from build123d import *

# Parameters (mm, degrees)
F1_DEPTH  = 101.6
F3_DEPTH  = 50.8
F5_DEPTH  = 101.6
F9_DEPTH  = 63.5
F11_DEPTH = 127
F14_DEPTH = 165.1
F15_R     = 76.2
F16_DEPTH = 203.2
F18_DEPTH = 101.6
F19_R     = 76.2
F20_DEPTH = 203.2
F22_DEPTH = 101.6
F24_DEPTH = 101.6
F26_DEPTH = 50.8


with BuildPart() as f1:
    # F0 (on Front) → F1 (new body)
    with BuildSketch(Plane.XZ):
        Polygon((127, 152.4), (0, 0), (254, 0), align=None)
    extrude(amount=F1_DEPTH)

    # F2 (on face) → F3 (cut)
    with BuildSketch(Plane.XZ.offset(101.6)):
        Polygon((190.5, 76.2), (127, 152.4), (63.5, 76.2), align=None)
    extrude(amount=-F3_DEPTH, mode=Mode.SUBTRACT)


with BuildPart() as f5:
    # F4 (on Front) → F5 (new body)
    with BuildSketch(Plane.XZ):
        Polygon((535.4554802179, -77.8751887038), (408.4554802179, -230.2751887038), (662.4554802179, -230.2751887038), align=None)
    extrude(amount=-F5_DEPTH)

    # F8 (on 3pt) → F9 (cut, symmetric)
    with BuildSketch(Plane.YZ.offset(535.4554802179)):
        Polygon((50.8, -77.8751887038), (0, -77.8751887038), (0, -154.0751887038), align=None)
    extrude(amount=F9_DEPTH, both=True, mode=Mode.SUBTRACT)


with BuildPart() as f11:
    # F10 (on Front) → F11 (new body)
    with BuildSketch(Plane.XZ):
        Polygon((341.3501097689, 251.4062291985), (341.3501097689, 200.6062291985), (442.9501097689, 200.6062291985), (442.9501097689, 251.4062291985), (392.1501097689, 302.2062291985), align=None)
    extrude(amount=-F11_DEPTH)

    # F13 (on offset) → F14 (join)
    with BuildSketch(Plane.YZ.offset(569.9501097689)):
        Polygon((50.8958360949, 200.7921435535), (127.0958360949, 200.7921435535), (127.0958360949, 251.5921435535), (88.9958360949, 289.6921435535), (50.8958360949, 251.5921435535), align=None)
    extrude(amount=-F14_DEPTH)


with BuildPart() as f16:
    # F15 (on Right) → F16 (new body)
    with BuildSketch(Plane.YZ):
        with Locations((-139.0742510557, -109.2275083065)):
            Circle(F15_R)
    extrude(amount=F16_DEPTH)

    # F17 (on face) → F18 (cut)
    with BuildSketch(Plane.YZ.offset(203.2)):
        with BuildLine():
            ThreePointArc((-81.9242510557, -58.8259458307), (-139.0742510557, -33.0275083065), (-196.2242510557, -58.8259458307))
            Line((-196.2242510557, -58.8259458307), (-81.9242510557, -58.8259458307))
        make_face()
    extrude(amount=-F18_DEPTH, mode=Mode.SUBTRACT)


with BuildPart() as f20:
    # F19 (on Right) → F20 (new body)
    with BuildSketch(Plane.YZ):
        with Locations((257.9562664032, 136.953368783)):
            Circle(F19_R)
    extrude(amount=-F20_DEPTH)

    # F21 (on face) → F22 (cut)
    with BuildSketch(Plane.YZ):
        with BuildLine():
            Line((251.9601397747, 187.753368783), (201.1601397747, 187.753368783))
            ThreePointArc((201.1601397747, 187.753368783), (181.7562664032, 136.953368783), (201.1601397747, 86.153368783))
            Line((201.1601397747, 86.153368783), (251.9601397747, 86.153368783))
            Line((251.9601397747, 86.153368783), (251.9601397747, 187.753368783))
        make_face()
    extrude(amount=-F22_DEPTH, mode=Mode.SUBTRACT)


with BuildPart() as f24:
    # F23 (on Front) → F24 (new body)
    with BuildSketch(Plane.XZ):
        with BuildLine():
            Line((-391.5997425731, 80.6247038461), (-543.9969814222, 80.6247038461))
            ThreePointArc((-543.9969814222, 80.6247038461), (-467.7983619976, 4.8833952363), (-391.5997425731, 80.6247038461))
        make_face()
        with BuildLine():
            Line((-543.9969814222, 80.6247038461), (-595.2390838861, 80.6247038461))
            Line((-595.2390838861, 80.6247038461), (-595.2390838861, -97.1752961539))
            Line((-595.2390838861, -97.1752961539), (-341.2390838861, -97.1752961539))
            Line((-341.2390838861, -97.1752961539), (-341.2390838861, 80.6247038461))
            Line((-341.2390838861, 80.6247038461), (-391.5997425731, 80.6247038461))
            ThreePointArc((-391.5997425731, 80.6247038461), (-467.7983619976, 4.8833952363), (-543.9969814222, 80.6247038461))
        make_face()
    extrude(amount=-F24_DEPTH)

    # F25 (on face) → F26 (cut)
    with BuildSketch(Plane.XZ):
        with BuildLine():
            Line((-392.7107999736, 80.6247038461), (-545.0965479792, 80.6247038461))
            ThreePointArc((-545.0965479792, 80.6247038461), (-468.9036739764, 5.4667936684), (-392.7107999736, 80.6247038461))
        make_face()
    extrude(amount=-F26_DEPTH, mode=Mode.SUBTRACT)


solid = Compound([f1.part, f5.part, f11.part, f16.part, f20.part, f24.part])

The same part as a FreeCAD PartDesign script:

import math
import FreeCAD as App
import Part
import Sketcher

V = App.Vector
Q = App.Units.Quantity


def add_polygon(sketch, points):
    """Adds a closed chain of lines whose ends are joined by coincident constraints."""
    first, n = sketch.GeometryCount, len(points)
    for a, b in zip(points, points[1:] + points[:1]):
        sketch.addGeometry(Part.LineSegment(App.Vector(*a, 0), App.Vector(*b, 0)), False)
    for i in range(n):
        sketch.addConstraint(Sketcher.Constraint("Coincident", first + i, 2, first + (i + 1) % n, 1))

doc = App.newDocument("Part")
body = doc.addObject("PartDesign::Body", "Body")

# Sketch on XZ plane
sketch1 = body.newObject("Sketcher::SketchObject", "Sketch")
sketch1.AttachmentSupport = (doc.getObject("XZ_Plane"), [""])
sketch1.MapMode = "FlatFace"
add_polygon(sketch1, [(127, 152), (0, 0), (254, 0)])  # lines 0-2
sketch1.addConstraint(Sketcher.Constraint("Horizontal", 1))
sketch1.addConstraint(Sketcher.Constraint("Coincident", 0, 2, -1, 1))
sketch1.addConstraint(Sketcher.Constraint("Equal", 0, 2))
sketch1.addConstraint(Sketcher.Constraint("DistanceX", 1, 1, 1, 2, Q("10 in")))
sketch1.addConstraint(Sketcher.Constraint("DistanceY", -1, 1, 2, 2, Q("6 in")))
pad1 = body.newObject("PartDesign::Pad", "Pad")
pad1.Profile = sketch1
pad1.Length = Q("4 in")

# Sketch on XZ plane
sketch2 = body.newObject("Sketcher::SketchObject", "Sketch001")
sketch2.AttachmentSupport = (doc.getObject("XZ_Plane"), [""])
sketch2.MapMode = "FlatFace"
sketch2.AttachmentOffset = App.Placement(V(0, 0, 4 * 25.4), App.Rotation())
add_polygon(sketch2, [(190, 76), (127, 152), (64, 76)])  # lines 0-2
sketch2.addConstraint(Sketcher.Constraint("Horizontal", 2))
sketch2.addConstraint(Sketcher.Constraint("Equal", 0, 1))
sketch2.addConstraint(Sketcher.Constraint("DistanceX", 2, 1, 2, 2, Q("5 in")))
sketch2.addConstraint(Sketcher.Constraint("DistanceX", -1, 1, 0, 2, Q("5 in")))
sketch2.addConstraint(Sketcher.Constraint("DistanceY", -1, 1, 0, 2, Q("6 in")))
sketch2.addConstraint(Sketcher.Constraint("DistanceY", -1, 1, 1, 2, Q("3 in")))
pocket1 = body.newObject("PartDesign::Pocket", "Pocket")
pocket1.Profile = sketch2
pocket1.Length = Q("2 in")
body2 = doc.addObject("PartDesign::Body", "Body001")

# Sketch on XZ plane
sketch3 = body2.newObject("Sketcher::SketchObject", "Sketch002")
sketch3.AttachmentSupport = (doc.getObject("XZ_Plane001"), [""])
sketch3.MapMode = "FlatFace"
add_polygon(sketch3, [(535, -78), (408, -230), (662, -230)])  # lines 0-2
sketch3.addConstraint(Sketcher.Constraint("Horizontal", 1))
sketch3.addConstraint(Sketcher.Constraint("Equal", 0, 2))
sketch3.addConstraint(Sketcher.Constraint("DistanceX", 1, 1, 1, 2, Q("10 in")))
sketch3.addConstraint(Sketcher.Constraint("DistanceY", 1, 2, 2, 2, Q("6 in")))
sketch3.addConstraint(Sketcher.Constraint("DistanceX", -1, 1, 0, 2, 408.45548))
sketch3.addConstraint(Sketcher.Constraint("DistanceY", 0, 2, -1, 1, 230.275189))
pad2 = body2.newObject("PartDesign::Pad", "Pad001")
pad2.Profile = sketch3
pad2.Length = Q("4 in")
pad2.Reversed = True

# Sketch on YZ plane
sketch4 = body2.newObject("Sketcher::SketchObject", "Sketch003")
sketch4.AttachmentSupport = (doc.getObject("YZ_Plane001"), [""])
sketch4.MapMode = "FlatFace"
sketch4.AttachmentOffset = App.Placement(V(0, 0, 535.45548), App.Rotation())
add_polygon(sketch4, [(51, -78), (0, -78), (0, -154)])  # lines 0-2
sketch4.addConstraint(Sketcher.Constraint("Horizontal", 0))
sketch4.addConstraint(Sketcher.Constraint("Vertical", 1))
sketch4.addConstraint(Sketcher.Constraint("PointOnObject", 0, 2, -2))
sketch4.addConstraint(Sketcher.Constraint("DistanceX", 0, 2, 0, 1, Q("2 in")))
sketch4.addConstraint(Sketcher.Constraint("DistanceY", 1, 2, 1, 1, Q("3 in")))
sketch4.addConstraint(Sketcher.Constraint("DistanceY", 0, 2, -1, 1, 77.875189))
pocket2 = body2.newObject("PartDesign::Pocket", "Pocket001")
pocket2.Profile = sketch4
pocket2.Length = Q("5 in")
pocket2.Midplane = True
body3 = doc.addObject("PartDesign::Body", "Body002")

# Sketch on XZ plane
sketch5 = body3.newObject("Sketcher::SketchObject", "Sketch004")
sketch5.AttachmentSupport = (doc.getObject("XZ_Plane002"), [""])
sketch5.MapMode = "FlatFace"
add_polygon(sketch5, [(341, 251), (341, 201), (443, 201), (443, 251), (392, 302)])  # lines 0-4
sketch5.addConstraint(Sketcher.Constraint("Vertical", 0))
sketch5.addConstraint(Sketcher.Constraint("Horizontal", 1))
sketch5.addConstraint(Sketcher.Constraint("Vertical", 2))
sketch5.addConstraint(Sketcher.Constraint("Perpendicular", 3, 4))
sketch5.addConstraint(Sketcher.Constraint("Horizontal", 2, 2, 4, 2))
sketch5.addConstraint(Sketcher.Constraint("Equal", 3, 4))
sketch5.addConstraint(Sketcher.Constraint("DistanceX", 1, 1, 1, 2, Q("4 in")))
sketch5.addConstraint(Sketcher.Constraint("DistanceY", 0, 2, 0, 1, Q("2 in")))
sketch5.addConstraint(Sketcher.Constraint("DistanceX", -1, 1, 0, 2, 341.35011))
sketch5.addConstraint(Sketcher.Constraint("DistanceY", -1, 1, 0, 2, 200.606229))
pad3 = body3.newObject("PartDesign::Pad", "Pad002")
pad3.Profile = sketch5
pad3.Length = Q("5 in")
pad3.Reversed = True

# Sketch on YZ plane
sketch6 = body3.newObject("Sketcher::SketchObject", "Sketch005")
sketch6.AttachmentSupport = (doc.getObject("YZ_Plane002"), [""])
sketch6.MapMode = "FlatFace"
sketch6.AttachmentOffset = App.Placement(V(0, 0, 569.95011), App.Rotation())
add_polygon(sketch6, [(51, 201), (127, 201), (127, 252), (89, 290), (51, 252)])  # lines 0-4
sketch6.addConstraint(Sketcher.Constraint("Horizontal", 0))
sketch6.addConstraint(Sketcher.Constraint("Vertical", 1))
sketch6.addConstraint(Sketcher.Constraint("Vertical", 4))
sketch6.addConstraint(Sketcher.Constraint("Perpendicular", 2, 3))
sketch6.addConstraint(Sketcher.Constraint("Horizontal", 1, 2, 3, 2))
sketch6.addConstraint(Sketcher.Constraint("Equal", 2, 3))
sketch6.addConstraint(Sketcher.Constraint("DistanceX", 0, 1, 0, 2, Q("3 in")))
sketch6.addConstraint(Sketcher.Constraint("DistanceY", 1, 1, 1, 2, Q("2 in")))
sketch6.addConstraint(Sketcher.Constraint("DistanceX", -1, 1, 0, 2, 127.095836))
sketch6.addConstraint(Sketcher.Constraint("DistanceY", -1, 1, 0, 2, 200.792144))
pad4 = body3.newObject("PartDesign::Pad", "Pad003")
pad4.Profile = sketch6
pad4.Length = Q("6.5 in")
pad4.Reversed = True
body4 = doc.addObject("PartDesign::Body", "Body003")

# Sketch on YZ plane
sketch7 = body4.newObject("Sketcher::SketchObject", "Sketch006")
sketch7.AttachmentSupport = (doc.getObject("YZ_Plane003"), [""])
sketch7.MapMode = "FlatFace"
sketch7.addGeometry(Part.Circle(V(-139, -109, 0), V(0, 0, 1), 76), False)
sketch7.addConstraint(Sketcher.Constraint("Diameter", 0, Q("6 in")))
sketch7.addConstraint(Sketcher.Constraint("DistanceX", 0, 3, -1, 1, 139.074251))
sketch7.addConstraint(Sketcher.Constraint("DistanceY", 0, 3, -1, 1, 109.227508))
pad5 = body4.newObject("PartDesign::Pad", "Pad004")
pad5.Profile = sketch7
pad5.Length = Q("8 in")

# Sketch on YZ plane
sketch8 = body4.newObject("Sketcher::SketchObject", "Sketch007")
sketch8.AttachmentSupport = (doc.getObject("YZ_Plane003"), [""])
sketch8.MapMode = "FlatFace"
sketch8.AttachmentOffset = App.Placement(V(0, 0, 8 * 25.4), App.Rotation())
sketch8.addGeometry(Part.ArcOfCircle(Part.Circle(V(-139, -109, 0), V(0, 0, 1), 76), math.radians(41), math.radians(139)), False)
sketch8.addGeometry(Part.LineSegment(V(-196, -59, 0), V(-82, -59, 0)), False)
sketch8.addConstraint(Sketcher.Constraint("Coincident", 0, 1, 1, 2))
sketch8.addConstraint(Sketcher.Constraint("Coincident", 1, 1, 0, 2))
sketch8.addConstraint(Sketcher.Constraint("Horizontal", 1))
sketch8.addConstraint(Sketcher.Constraint("Radius", 0, Q("3 in")))
sketch8.addConstraint(Sketcher.Constraint("DistanceX", 1, 1, 1, 2, Q("4.5 in")))
sketch8.addConstraint(Sketcher.Constraint("DistanceX", 0, 3, -1, 1, 139.074251))
sketch8.addConstraint(Sketcher.Constraint("DistanceY", 0, 3, -1, 1, 109.227508))
pocket3 = body4.newObject("PartDesign::Pocket", "Pocket002")
pocket3.Profile = sketch8
pocket3.Length = Q("4 in")
body5 = doc.addObject("PartDesign::Body", "Body004")

# Sketch on YZ plane
sketch9 = body5.newObject("Sketcher::SketchObject", "Sketch008")
sketch9.AttachmentSupport = (doc.getObject("YZ_Plane004"), [""])
sketch9.MapMode = "FlatFace"
sketch9.addGeometry(Part.Circle(V(258, 137, 0), V(0, 0, 1), 76), False)
sketch9.addConstraint(Sketcher.Constraint("Diameter", 0, Q("6 in")))
sketch9.addConstraint(Sketcher.Constraint("DistanceY", -1, 1, 0, 3, 136.953369))
sketch9.addConstraint(Sketcher.Constraint("DistanceX", -1, 1, 0, 3, 257.956266))
pad6 = body5.newObject("PartDesign::Pad", "Pad005")
pad6.Profile = sketch9
pad6.Length = Q("8 in")
pad6.Reversed = True

# Sketch on YZ plane
sketch10 = body5.newObject("Sketcher::SketchObject", "Sketch009")
sketch10.AttachmentSupport = (doc.getObject("YZ_Plane004"), [""])
sketch10.MapMode = "FlatFace"
sketch10.addGeometry(Part.LineSegment(V(252, 188, 0), V(201, 188, 0)), False)
sketch10.addGeometry(Part.ArcOfCircle(Part.Circle(V(258, 137, 0), V(0, 0, 1), 76), math.radians(138), math.radians(222)), False)
sketch10.addGeometry(Part.LineSegment(V(201, 86, 0), V(252, 86, 0)), False)
sketch10.addGeometry(Part.LineSegment(V(252, 86, 0), V(252, 188, 0)), False)
sketch10.addConstraint(Sketcher.Constraint("Coincident", 0, 2, 1, 1))
sketch10.addConstraint(Sketcher.Constraint("Coincident", 1, 2, 2, 1))
sketch10.addConstraint(Sketcher.Constraint("Coincident", 2, 2, 3, 1))
sketch10.addConstraint(Sketcher.Constraint("Coincident", 3, 2, 0, 1))
sketch10.addConstraint(Sketcher.Constraint("Horizontal", 0))
sketch10.addConstraint(Sketcher.Constraint("Horizontal", 2))
sketch10.addConstraint(Sketcher.Constraint("Vertical", 3))
sketch10.addConstraint(Sketcher.Constraint("Vertical", 0, 2, 1, 2))
sketch10.addConstraint(Sketcher.Constraint("Radius", 1, Q("3 in")))
sketch10.addConstraint(Sketcher.Constraint("DistanceX", 0, 2, 0, 1, Q("2 in")))
sketch10.addConstraint(Sketcher.Constraint("DistanceY", 3, 1, 3, 2, Q("4 in")))
sketch10.addConstraint(Sketcher.Constraint("DistanceY", -1, 1, 1, 3, 136.953369))
sketch10.addConstraint(Sketcher.Constraint("DistanceX", -1, 1, 0, 2, 201.16014))
pocket4 = body5.newObject("PartDesign::Pocket", "Pocket003")
pocket4.Profile = sketch10
pocket4.Length = Q("4 in")
body6 = doc.addObject("PartDesign::Body", "Body005")

# Sketch on XZ plane
sketch11 = body6.newObject("Sketcher::SketchObject", "Sketch010")
sketch11.AttachmentSupport = (doc.getObject("XZ_Plane005"), [""])
sketch11.MapMode = "FlatFace"
add_polygon(sketch11, [(-595, 81), (-595, -97), (-341, -97), (-341, 81)])  # lines 0-3
sketch11.addConstraint(Sketcher.Constraint("Vertical", 0))
sketch11.addConstraint(Sketcher.Constraint("Horizontal", 1))
sketch11.addConstraint(Sketcher.Constraint("Vertical", 2))
sketch11.addConstraint(Sketcher.Constraint("Horizontal", 3))
sketch11.addConstraint(Sketcher.Constraint("DistanceX", 1, 1, 1, 2, Q("10 in")))
sketch11.addConstraint(Sketcher.Constraint("DistanceY", 0, 2, 0, 1, Q("7 in")))
sketch11.addConstraint(Sketcher.Constraint("DistanceX", 0, 2, -1, 1, 595.239084))
sketch11.addConstraint(Sketcher.Constraint("DistanceY", 0, 2, -1, 1, 97.175296))
pad7 = body6.newObject("PartDesign::Pad", "Pad006")
pad7.Profile = sketch11
pad7.Length = Q("4 in")
pad7.Reversed = True

# Sketch on XZ plane
sketch12 = body6.newObject("Sketcher::SketchObject", "Sketch011")
sketch12.AttachmentSupport = (doc.getObject("XZ_Plane005"), [""])
sketch12.MapMode = "FlatFace"
sketch12.addGeometry(Part.LineSegment(V(-393, 81, 0), V(-545, 81, 0)), False)
sketch12.addGeometry(Part.ArcOfCircle(Part.Circle(V(-469, 82, 0), V(0, 0, 1), 76), math.radians(-179), math.radians(-1)), False)
sketch12.addConstraint(Sketcher.Constraint("Coincident", 0, 1, 1, 2))
sketch12.addConstraint(Sketcher.Constraint("Coincident", 1, 1, 0, 2))
sketch12.addConstraint(Sketcher.Constraint("Horizontal", 0))
sketch12.addConstraint(Sketcher.Constraint("Radius", 1, Q("3 in")))
sketch12.addConstraint(Sketcher.Constraint("DistanceX", 0, 2, 0, 1, 152.385748))
sketch12.addConstraint(Sketcher.Constraint("DistanceX", 0, 1, -1, 1, 392.7108))
sketch12.addConstraint(Sketcher.Constraint("DistanceY", -1, 1, 1, 3, 81.666794))
pocket5 = body6.newObject("PartDesign::Pocket", "Pocket004")
pocket5.Profile = sketch12
pocket5.Length = Q("2 in")

doc.recompute()
